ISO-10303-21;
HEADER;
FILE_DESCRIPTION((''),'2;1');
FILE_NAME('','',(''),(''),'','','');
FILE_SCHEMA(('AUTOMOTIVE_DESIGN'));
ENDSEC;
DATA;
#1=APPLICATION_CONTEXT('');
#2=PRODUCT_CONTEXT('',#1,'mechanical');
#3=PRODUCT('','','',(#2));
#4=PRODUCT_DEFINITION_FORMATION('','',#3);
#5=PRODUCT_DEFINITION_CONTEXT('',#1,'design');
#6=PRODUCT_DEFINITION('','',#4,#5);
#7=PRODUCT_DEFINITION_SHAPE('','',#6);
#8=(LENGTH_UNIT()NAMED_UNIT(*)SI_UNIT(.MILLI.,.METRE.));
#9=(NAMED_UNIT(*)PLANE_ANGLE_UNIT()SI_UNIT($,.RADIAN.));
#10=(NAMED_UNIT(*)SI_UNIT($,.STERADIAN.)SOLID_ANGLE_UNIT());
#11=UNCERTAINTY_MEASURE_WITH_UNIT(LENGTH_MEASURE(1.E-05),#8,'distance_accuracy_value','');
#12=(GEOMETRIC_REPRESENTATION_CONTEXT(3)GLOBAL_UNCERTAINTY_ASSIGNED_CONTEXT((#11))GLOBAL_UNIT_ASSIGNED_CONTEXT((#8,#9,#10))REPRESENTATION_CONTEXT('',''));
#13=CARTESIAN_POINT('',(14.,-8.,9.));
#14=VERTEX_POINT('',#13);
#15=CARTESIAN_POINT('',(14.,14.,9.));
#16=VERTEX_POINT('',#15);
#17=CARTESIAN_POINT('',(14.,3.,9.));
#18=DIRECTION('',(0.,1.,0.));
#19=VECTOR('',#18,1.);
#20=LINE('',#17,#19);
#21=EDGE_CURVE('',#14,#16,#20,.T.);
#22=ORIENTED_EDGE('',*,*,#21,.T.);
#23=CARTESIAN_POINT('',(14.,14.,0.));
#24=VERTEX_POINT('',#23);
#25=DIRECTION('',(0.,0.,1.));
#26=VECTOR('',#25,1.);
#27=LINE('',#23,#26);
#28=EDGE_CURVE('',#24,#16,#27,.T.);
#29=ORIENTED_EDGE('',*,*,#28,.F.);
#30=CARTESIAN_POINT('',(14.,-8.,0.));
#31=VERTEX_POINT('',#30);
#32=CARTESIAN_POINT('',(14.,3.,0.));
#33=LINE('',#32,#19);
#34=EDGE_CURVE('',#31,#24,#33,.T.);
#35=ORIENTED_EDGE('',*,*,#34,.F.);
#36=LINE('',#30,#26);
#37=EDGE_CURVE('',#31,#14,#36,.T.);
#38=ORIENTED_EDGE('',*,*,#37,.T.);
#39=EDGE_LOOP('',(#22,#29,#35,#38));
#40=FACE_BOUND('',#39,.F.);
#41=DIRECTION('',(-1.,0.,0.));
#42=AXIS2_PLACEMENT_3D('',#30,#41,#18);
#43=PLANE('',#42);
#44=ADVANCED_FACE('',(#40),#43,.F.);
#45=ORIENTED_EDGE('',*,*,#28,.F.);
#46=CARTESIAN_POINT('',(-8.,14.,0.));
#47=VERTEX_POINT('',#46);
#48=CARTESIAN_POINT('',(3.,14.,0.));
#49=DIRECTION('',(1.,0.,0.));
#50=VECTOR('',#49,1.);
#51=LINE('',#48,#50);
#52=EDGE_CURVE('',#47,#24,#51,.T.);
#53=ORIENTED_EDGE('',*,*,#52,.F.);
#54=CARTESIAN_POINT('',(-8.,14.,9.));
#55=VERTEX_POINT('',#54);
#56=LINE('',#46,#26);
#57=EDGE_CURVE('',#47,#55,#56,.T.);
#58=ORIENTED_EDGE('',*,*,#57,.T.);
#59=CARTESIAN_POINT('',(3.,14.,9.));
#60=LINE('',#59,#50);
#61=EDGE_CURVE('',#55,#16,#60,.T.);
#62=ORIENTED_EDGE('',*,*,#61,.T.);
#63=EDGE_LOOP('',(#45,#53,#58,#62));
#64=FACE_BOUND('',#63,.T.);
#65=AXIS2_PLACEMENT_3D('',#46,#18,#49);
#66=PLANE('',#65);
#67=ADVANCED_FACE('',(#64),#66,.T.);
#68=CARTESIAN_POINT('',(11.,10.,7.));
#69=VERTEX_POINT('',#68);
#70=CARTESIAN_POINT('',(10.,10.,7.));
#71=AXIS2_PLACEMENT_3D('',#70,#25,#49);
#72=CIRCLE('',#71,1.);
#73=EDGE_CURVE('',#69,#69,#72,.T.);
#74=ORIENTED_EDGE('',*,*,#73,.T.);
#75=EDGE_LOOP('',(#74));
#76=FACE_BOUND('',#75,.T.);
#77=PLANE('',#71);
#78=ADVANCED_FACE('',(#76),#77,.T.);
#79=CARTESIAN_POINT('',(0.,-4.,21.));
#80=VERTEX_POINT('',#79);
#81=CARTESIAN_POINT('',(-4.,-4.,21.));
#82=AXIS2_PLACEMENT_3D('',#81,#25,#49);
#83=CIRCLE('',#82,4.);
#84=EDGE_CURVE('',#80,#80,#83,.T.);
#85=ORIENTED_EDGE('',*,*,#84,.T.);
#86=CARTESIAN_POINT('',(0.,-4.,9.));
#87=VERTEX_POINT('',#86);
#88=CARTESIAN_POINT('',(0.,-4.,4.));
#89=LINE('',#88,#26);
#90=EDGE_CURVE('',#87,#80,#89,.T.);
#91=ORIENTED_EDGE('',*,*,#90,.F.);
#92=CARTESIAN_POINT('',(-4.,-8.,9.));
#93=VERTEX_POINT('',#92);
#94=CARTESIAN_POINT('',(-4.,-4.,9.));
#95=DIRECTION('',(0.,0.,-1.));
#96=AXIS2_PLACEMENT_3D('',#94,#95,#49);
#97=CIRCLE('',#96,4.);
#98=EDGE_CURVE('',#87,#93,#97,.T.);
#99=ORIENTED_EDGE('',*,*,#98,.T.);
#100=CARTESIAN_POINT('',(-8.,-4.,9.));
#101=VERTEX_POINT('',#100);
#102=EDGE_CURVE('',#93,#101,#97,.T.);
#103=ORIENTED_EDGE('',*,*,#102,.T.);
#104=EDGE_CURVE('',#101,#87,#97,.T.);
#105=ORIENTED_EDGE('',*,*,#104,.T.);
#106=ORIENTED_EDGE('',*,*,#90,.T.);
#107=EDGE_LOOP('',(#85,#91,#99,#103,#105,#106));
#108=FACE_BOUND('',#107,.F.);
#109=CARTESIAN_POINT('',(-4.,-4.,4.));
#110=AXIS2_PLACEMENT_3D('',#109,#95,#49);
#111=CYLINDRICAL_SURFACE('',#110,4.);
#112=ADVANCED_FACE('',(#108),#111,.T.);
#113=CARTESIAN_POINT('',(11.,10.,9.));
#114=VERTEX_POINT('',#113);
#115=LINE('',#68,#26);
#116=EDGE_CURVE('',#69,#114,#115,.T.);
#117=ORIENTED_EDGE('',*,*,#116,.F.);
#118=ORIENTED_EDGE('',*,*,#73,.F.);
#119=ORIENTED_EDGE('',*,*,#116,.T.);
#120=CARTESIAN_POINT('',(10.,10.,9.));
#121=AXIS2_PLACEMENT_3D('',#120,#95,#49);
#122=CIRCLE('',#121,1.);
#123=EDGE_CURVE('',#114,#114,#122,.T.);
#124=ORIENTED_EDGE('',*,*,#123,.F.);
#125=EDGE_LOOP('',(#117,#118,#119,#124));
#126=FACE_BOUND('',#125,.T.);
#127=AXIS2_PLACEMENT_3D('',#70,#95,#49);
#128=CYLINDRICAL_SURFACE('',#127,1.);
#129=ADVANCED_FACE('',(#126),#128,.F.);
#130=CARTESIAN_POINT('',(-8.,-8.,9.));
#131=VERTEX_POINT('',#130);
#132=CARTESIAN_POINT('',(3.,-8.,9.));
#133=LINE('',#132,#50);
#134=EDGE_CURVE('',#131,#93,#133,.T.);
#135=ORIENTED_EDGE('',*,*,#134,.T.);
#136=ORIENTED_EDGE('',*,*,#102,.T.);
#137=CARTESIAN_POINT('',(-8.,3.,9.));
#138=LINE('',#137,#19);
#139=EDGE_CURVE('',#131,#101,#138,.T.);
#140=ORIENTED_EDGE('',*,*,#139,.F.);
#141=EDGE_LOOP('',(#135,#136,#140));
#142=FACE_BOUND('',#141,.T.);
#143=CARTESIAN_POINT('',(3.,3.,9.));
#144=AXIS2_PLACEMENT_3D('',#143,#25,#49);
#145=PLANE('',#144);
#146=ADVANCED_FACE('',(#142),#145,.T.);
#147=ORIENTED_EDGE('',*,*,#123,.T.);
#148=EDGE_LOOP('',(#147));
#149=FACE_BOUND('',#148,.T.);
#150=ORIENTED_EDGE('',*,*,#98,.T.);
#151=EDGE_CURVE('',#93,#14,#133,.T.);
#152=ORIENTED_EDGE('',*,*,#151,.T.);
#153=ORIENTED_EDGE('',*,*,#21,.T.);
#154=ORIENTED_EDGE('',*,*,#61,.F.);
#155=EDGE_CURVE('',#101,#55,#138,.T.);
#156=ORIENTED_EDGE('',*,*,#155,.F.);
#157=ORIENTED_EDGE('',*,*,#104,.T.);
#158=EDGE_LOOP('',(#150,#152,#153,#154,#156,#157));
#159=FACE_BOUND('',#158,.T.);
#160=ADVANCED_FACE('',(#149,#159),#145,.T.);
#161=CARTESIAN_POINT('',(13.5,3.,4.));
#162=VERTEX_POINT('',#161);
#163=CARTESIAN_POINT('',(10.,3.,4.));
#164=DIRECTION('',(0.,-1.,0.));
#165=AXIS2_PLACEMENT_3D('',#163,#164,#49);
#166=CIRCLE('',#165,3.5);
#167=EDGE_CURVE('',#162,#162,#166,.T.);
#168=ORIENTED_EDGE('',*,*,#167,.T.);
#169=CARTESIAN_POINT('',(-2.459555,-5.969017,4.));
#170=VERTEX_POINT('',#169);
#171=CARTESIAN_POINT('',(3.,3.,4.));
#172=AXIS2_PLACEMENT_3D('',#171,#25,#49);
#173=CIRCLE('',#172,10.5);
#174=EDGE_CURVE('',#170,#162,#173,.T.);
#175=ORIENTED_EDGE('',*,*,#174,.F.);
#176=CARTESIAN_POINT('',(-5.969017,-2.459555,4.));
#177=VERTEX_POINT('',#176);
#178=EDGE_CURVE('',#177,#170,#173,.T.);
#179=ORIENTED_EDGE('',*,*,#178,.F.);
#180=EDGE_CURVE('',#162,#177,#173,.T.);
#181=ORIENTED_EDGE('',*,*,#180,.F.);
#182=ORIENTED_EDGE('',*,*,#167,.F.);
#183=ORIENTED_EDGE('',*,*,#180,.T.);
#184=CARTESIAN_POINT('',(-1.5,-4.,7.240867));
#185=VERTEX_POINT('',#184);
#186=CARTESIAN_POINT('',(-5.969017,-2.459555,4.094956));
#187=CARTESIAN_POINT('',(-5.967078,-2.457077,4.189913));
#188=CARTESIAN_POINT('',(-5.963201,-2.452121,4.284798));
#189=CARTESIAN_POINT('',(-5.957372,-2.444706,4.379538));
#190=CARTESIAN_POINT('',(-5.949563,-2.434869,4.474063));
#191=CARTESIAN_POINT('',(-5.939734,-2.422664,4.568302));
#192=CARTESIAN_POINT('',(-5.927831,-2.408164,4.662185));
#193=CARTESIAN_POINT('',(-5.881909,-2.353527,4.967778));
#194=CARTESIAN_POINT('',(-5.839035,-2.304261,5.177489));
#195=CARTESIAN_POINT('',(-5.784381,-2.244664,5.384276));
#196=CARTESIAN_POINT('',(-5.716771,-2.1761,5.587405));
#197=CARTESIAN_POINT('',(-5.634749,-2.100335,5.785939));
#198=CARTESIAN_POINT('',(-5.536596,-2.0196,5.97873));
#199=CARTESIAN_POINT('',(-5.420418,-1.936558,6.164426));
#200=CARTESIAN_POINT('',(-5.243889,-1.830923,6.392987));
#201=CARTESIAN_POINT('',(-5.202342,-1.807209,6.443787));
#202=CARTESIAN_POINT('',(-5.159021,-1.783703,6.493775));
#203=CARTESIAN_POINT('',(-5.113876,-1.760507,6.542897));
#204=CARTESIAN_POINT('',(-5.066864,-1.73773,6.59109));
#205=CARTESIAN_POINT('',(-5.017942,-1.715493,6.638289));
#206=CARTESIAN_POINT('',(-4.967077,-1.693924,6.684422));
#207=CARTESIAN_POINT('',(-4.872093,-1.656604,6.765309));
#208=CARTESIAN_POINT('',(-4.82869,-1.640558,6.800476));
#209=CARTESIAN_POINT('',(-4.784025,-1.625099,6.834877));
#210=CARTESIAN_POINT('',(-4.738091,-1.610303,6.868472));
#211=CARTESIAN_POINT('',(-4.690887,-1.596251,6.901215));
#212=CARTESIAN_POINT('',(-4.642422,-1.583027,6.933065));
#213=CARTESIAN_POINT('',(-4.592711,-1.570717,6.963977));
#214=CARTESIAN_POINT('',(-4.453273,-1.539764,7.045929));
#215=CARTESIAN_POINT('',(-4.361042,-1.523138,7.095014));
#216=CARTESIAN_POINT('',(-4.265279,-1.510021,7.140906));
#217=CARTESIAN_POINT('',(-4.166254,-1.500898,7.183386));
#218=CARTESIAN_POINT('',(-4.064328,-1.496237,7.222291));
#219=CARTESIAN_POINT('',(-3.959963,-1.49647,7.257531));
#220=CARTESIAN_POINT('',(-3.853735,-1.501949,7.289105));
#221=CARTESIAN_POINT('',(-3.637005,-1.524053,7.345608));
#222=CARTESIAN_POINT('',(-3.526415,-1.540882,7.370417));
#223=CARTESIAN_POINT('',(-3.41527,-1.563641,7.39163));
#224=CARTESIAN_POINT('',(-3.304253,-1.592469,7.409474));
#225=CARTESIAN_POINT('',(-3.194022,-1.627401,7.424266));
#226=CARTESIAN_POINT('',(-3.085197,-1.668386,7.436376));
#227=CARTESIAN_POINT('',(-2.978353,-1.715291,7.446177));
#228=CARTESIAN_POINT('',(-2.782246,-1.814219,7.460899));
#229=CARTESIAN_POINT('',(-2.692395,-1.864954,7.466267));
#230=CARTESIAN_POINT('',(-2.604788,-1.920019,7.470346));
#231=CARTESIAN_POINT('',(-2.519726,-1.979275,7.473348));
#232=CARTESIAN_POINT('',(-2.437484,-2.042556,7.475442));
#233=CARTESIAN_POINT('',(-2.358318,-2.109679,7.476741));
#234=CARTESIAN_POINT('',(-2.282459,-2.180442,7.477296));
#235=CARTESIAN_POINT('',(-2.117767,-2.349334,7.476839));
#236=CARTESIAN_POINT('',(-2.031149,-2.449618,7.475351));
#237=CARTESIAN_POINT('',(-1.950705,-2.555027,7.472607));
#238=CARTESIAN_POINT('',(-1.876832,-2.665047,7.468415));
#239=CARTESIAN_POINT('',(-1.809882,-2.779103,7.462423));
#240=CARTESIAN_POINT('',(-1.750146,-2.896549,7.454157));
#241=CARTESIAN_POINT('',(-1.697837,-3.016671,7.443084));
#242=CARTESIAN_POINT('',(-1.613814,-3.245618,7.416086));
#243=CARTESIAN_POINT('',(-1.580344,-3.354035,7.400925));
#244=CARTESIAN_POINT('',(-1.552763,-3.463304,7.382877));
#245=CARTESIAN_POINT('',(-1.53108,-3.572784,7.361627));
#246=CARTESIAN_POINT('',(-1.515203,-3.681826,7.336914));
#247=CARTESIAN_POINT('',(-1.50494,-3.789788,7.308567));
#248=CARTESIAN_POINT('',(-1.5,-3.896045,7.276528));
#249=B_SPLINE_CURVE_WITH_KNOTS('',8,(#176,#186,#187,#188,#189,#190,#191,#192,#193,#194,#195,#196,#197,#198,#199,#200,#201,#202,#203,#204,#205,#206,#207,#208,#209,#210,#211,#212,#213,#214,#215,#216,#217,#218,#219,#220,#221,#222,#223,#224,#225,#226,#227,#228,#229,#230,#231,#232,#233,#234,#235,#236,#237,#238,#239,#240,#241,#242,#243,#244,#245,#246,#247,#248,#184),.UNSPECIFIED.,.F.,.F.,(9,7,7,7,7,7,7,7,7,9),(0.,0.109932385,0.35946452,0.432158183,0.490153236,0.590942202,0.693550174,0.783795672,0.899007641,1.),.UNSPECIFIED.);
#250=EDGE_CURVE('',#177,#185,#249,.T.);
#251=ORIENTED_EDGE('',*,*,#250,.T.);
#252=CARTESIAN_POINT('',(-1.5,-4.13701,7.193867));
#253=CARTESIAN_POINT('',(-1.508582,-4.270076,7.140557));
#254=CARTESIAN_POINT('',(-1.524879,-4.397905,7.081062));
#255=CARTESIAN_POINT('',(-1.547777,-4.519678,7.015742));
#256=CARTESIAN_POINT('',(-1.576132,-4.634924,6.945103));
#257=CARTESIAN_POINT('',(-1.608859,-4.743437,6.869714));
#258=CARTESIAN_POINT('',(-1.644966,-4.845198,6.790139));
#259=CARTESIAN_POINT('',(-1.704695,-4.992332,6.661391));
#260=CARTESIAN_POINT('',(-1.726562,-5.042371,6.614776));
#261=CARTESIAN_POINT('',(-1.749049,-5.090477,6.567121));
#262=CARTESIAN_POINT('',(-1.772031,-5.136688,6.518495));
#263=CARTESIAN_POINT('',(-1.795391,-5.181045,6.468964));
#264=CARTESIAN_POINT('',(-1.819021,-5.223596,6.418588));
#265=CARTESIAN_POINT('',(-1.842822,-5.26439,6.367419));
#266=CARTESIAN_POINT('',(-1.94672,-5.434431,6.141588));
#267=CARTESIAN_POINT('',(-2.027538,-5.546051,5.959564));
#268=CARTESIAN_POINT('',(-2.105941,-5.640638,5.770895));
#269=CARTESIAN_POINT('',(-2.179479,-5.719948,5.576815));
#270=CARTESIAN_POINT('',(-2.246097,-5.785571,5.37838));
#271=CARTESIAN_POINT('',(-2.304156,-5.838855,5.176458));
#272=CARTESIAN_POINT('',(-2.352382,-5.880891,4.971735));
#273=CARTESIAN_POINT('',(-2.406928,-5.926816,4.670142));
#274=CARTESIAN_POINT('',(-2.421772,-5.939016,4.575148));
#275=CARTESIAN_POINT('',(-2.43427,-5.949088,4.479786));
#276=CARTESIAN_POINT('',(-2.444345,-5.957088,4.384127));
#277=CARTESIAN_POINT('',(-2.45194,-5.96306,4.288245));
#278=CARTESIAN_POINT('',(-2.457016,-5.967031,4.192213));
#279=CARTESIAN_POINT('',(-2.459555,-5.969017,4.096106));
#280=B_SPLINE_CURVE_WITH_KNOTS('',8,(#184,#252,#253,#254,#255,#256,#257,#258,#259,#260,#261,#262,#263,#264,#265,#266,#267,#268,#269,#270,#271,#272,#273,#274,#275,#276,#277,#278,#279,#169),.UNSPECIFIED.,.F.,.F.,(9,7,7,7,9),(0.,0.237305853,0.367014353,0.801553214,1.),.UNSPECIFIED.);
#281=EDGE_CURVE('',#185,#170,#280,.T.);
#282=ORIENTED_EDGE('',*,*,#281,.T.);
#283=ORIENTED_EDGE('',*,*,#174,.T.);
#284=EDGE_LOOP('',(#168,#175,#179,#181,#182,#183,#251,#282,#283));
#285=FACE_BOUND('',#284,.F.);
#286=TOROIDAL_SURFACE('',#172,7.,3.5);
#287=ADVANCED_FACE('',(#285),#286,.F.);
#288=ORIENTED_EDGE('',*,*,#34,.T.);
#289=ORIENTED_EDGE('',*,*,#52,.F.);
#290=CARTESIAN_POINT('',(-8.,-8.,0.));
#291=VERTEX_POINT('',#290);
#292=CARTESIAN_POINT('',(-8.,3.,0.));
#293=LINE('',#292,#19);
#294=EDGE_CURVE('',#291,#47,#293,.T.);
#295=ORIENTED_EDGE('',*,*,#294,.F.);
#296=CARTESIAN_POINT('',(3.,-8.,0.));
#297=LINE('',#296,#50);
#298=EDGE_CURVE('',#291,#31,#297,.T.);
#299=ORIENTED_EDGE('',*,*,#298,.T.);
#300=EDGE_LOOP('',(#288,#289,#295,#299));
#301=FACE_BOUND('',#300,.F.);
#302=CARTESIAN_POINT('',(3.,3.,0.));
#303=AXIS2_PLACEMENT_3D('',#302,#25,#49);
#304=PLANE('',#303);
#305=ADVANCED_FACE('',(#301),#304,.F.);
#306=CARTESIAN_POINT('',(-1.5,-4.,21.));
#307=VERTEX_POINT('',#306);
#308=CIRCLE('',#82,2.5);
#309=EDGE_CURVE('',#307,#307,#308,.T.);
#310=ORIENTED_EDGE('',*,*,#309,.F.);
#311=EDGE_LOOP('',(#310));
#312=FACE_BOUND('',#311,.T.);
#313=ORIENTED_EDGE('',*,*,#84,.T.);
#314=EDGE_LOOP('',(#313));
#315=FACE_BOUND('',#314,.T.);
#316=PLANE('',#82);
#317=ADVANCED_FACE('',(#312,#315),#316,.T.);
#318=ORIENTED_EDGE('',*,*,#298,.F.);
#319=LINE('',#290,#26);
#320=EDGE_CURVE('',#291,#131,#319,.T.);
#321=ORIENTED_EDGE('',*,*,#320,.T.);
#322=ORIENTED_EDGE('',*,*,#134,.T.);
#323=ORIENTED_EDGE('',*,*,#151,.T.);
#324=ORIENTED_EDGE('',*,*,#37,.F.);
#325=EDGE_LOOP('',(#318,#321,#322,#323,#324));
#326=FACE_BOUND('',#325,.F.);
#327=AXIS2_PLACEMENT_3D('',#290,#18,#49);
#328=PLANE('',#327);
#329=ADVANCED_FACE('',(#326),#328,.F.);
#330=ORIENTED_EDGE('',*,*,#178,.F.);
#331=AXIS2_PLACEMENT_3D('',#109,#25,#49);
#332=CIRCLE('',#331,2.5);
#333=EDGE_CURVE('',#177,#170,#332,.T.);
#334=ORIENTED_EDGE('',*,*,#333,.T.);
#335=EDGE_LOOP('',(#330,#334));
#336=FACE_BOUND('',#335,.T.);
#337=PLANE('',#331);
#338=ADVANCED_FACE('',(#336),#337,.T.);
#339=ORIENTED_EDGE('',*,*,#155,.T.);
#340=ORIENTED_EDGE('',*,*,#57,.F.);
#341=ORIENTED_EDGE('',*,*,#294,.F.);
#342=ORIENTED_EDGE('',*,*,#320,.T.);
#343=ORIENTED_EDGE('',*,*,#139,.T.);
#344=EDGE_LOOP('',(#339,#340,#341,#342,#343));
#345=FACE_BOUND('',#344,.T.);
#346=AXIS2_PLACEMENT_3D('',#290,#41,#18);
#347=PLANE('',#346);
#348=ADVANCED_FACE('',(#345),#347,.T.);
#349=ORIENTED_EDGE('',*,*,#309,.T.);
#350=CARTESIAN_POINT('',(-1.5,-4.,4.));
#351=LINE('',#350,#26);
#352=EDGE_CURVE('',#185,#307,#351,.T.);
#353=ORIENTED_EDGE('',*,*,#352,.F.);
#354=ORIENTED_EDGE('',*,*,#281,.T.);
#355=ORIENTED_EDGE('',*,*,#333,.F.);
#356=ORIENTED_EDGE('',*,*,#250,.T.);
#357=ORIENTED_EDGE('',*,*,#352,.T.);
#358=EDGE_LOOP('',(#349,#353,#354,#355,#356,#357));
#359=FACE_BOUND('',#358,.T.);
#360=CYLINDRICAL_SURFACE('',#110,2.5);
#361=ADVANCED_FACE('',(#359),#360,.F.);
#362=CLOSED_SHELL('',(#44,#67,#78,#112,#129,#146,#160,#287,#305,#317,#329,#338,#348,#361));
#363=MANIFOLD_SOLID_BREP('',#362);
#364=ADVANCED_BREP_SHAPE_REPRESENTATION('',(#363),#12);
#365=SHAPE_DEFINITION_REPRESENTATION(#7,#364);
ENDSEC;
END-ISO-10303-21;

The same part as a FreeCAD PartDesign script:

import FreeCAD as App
import Part
import Sketcher
Q = App.Units.Quantity


def add_polygon(sketch, points):
    """Adds a closed chain of lines whose ends are joined by coincident constraints."""
    first, n = sketch.GeometryCount, len(points)
    for a, b in zip(points, points[1:] + points[:1]):
        sketch.addGeometry(Part.LineSegment(App.Vector(*a, 0), App.Vector(*b, 0)), False)
    for i in range(n):
        sketch.addConstraint(Sketcher.Constraint("Coincident", first + i, 2, first + (i + 1) % n, 1))

doc = App.newDocument("Part")
body = doc.addObject("PartDesign::Body", "Body")

# Sketch on XZ plane
sketch1 = body.newObject("Sketcher::SketchObject", "Sketch")
sketch1.AttachmentSupport = (doc.getObject("XZ_Plane"), [""])
sketch1.MapMode = "FlatFace"
sketch1.AttachmentOffset = App.Placement(App.Vector(0, 0, -3), App.Rotation())
sketch1.addGeometry(Part.Circle(App.Vector(10, 4, 0), App.Vector(0, 0, 1), 3.5), False)
sketch1.addGeometry(Part.LineSegment(App.Vector(3, 4, 0), App.Vector(3, 14, 0)), True)  # axis
sketch1.addConstraint([
    Sketcher.Constraint("Vertical", 1),
    Sketcher.Constraint("Horizontal", 0, 3, 1, 1),
    Sketcher.Constraint("Diameter", 0, Q("7 mm")),
    Sketcher.Constraint("DistanceY", 1, 1, 1, 2, Q("10 mm")),
    Sketcher.Constraint("DistanceX", -1, 1, 0, 3, Q("10 mm")),
    Sketcher.Constraint("DistanceY", -1, 1, 0, 3, Q("4 mm")),
    Sketcher.Constraint("DistanceX", -1, 1, 1, 1, Q("3 mm")),
])
revolution = body.newObject("PartDesign::Revolution", "Revolution")
revolution.Profile = sketch1
revolution.ReferenceAxis = (sketch1, ["Axis0"])
revolution.Angle = 360
body2 = doc.addObject("PartDesign::Body", "Body001")

# Sketch on XY plane
sketch2 = body2.newObject("Sketcher::SketchObject", "Sketch001")
sketch2.AttachmentSupport = (doc.getObject("XY_Plane001"), [""])
sketch2.MapMode = "FlatFace"
sketch2.AttachmentOffset = App.Placement(App.Vector(0, 0, 7), App.Rotation())
sketch2.addGeometry(Part.Circle(App.Vector(10, 10, 0), App.Vector(0, 0, 1), 1), False)
sketch2.addConstraint([
    Sketcher.Constraint("Diameter", 0, Q("2 mm")),
    Sketcher.Constraint("DistanceX", -1, 1, 0, 3, Q("10 mm")),
    Sketcher.Constraint("DistanceY", -1, 1, 0, 3, Q("10 mm")),
])
pad1 = body2.newObject("PartDesign::Pad", "Pad")
pad1.Profile = sketch2
pad1.Length = 10
body3 = doc.addObject("PartDesign::Body", "Body002")
body3.AllowCompound = True

# Sketch on XY plane
sketch3 = body3.newObject("Sketcher::SketchObject", "Sketch002")
sketch3.AttachmentSupport = (doc.getObject("XY_Plane002"), [""])
sketch3.MapMode = "FlatFace"
sketch3.AttachmentOffset = App.Placement(App.Vector(0, 0, 4), App.Rotation())
sketch3.addGeometry(Part.Circle(App.Vector(-4, -4, 0), App.Vector(0, 0, 1), 2.5), False)
sketch3.addConstraint([
    Sketcher.Constraint("Diameter", 0, Q("5 mm")),
    Sketcher.Constraint("DistanceX", 0, 3, -1, 1, Q("4 mm")),
    Sketcher.Constraint("DistanceY", 0, 3, -1, 1, Q("4 mm")),
])
pad2 = body3.newObject("PartDesign::Pad", "Pad001")
pad2.Profile = sketch3
pad2.Length = 17
doc.recompute()

boolean = body3.newObject("PartDesign::Boolean", "Boolean")
boolean.Type = "Fuse"
boolean.addObjects([body])
doc.recompute()

boolean2 = body3.newObject("PartDesign::Boolean", "Boolean001")
boolean2.Type = "Fuse"
boolean2.addObjects([body2])
body4 = doc.addObject("PartDesign::Body", "Body003")

# Sketch on XY plane
sketch4 = body4.newObject("Sketcher::SketchObject", "Sketch003")
sketch4.AttachmentSupport = (doc.getObject("XY_Plane003"), [""])
sketch4.MapMode = "FlatFace"
sketch4.AttachmentOffset = App.Placement(App.Vector(0, 0, 4), App.Rotation())
sketch4.addGeometry(Part.Circle(App.Vector(-4, -4, 0), App.Vector(0, 0, 1), 4), False)
sketch4.addConstraint([
    Sketcher.Constraint("Diameter", 0, Q("8 mm")),
    Sketcher.Constraint("DistanceX", 0, 3, -1, 1, Q("4 mm")),
    Sketcher.Constraint("DistanceY", 0, 3, -1, 1, Q("4 mm")),
])
pad3 = body4.newObject("PartDesign::Pad", "Pad002")
pad3.Profile = sketch4
pad3.Length = 17
body5 = doc.addObject("PartDesign::Body", "Body004")

# Sketch on XY plane
sketch5 = body5.newObject("Sketcher::SketchObject", "Sketch004")
sketch5.AttachmentSupport = (doc.getObject("XY_Plane004"), [""])
sketch5.MapMode = "FlatFace"
add_polygon(sketch5, [(-8, 14), (-8, -8), (14, -8), (14, 14)])  # lines 0-3
sketch5.addConstraint([
    Sketcher.Constraint("Vertical", 0),
    Sketcher.Constraint("Horizontal", 1),
    Sketcher.Constraint("Vertical", 2),
    Sketcher.Constraint("Horizontal", 3),
    Sketcher.Constraint("Equal", 3, 0),
    Sketcher.Constraint("DistanceX", 1, 1, 1, 2, Q("22 mm")),
    Sketcher.Constraint("DistanceX", 0, 2, -1, 1, Q("8 mm")),
    Sketcher.Constraint("DistanceY", 0, 2, -1, 1, Q("8 mm")),
])
pad4 = body5.newObject("PartDesign::Pad", "Pad003")
pad4.Profile = sketch5
pad4.Length = 9
doc.recompute()

boolean3 = body5.newObject("PartDesign::Boolean", "Boolean002")
boolean3.Type = "Fuse"
boolean3.addObjects([body4])
doc.recompute()

boolean4 = body5.newObject("PartDesign::Boolean", "Boolean003")
boolean4.Type = "Cut"
boolean4.addObjects([body3])

doc.recompute()
